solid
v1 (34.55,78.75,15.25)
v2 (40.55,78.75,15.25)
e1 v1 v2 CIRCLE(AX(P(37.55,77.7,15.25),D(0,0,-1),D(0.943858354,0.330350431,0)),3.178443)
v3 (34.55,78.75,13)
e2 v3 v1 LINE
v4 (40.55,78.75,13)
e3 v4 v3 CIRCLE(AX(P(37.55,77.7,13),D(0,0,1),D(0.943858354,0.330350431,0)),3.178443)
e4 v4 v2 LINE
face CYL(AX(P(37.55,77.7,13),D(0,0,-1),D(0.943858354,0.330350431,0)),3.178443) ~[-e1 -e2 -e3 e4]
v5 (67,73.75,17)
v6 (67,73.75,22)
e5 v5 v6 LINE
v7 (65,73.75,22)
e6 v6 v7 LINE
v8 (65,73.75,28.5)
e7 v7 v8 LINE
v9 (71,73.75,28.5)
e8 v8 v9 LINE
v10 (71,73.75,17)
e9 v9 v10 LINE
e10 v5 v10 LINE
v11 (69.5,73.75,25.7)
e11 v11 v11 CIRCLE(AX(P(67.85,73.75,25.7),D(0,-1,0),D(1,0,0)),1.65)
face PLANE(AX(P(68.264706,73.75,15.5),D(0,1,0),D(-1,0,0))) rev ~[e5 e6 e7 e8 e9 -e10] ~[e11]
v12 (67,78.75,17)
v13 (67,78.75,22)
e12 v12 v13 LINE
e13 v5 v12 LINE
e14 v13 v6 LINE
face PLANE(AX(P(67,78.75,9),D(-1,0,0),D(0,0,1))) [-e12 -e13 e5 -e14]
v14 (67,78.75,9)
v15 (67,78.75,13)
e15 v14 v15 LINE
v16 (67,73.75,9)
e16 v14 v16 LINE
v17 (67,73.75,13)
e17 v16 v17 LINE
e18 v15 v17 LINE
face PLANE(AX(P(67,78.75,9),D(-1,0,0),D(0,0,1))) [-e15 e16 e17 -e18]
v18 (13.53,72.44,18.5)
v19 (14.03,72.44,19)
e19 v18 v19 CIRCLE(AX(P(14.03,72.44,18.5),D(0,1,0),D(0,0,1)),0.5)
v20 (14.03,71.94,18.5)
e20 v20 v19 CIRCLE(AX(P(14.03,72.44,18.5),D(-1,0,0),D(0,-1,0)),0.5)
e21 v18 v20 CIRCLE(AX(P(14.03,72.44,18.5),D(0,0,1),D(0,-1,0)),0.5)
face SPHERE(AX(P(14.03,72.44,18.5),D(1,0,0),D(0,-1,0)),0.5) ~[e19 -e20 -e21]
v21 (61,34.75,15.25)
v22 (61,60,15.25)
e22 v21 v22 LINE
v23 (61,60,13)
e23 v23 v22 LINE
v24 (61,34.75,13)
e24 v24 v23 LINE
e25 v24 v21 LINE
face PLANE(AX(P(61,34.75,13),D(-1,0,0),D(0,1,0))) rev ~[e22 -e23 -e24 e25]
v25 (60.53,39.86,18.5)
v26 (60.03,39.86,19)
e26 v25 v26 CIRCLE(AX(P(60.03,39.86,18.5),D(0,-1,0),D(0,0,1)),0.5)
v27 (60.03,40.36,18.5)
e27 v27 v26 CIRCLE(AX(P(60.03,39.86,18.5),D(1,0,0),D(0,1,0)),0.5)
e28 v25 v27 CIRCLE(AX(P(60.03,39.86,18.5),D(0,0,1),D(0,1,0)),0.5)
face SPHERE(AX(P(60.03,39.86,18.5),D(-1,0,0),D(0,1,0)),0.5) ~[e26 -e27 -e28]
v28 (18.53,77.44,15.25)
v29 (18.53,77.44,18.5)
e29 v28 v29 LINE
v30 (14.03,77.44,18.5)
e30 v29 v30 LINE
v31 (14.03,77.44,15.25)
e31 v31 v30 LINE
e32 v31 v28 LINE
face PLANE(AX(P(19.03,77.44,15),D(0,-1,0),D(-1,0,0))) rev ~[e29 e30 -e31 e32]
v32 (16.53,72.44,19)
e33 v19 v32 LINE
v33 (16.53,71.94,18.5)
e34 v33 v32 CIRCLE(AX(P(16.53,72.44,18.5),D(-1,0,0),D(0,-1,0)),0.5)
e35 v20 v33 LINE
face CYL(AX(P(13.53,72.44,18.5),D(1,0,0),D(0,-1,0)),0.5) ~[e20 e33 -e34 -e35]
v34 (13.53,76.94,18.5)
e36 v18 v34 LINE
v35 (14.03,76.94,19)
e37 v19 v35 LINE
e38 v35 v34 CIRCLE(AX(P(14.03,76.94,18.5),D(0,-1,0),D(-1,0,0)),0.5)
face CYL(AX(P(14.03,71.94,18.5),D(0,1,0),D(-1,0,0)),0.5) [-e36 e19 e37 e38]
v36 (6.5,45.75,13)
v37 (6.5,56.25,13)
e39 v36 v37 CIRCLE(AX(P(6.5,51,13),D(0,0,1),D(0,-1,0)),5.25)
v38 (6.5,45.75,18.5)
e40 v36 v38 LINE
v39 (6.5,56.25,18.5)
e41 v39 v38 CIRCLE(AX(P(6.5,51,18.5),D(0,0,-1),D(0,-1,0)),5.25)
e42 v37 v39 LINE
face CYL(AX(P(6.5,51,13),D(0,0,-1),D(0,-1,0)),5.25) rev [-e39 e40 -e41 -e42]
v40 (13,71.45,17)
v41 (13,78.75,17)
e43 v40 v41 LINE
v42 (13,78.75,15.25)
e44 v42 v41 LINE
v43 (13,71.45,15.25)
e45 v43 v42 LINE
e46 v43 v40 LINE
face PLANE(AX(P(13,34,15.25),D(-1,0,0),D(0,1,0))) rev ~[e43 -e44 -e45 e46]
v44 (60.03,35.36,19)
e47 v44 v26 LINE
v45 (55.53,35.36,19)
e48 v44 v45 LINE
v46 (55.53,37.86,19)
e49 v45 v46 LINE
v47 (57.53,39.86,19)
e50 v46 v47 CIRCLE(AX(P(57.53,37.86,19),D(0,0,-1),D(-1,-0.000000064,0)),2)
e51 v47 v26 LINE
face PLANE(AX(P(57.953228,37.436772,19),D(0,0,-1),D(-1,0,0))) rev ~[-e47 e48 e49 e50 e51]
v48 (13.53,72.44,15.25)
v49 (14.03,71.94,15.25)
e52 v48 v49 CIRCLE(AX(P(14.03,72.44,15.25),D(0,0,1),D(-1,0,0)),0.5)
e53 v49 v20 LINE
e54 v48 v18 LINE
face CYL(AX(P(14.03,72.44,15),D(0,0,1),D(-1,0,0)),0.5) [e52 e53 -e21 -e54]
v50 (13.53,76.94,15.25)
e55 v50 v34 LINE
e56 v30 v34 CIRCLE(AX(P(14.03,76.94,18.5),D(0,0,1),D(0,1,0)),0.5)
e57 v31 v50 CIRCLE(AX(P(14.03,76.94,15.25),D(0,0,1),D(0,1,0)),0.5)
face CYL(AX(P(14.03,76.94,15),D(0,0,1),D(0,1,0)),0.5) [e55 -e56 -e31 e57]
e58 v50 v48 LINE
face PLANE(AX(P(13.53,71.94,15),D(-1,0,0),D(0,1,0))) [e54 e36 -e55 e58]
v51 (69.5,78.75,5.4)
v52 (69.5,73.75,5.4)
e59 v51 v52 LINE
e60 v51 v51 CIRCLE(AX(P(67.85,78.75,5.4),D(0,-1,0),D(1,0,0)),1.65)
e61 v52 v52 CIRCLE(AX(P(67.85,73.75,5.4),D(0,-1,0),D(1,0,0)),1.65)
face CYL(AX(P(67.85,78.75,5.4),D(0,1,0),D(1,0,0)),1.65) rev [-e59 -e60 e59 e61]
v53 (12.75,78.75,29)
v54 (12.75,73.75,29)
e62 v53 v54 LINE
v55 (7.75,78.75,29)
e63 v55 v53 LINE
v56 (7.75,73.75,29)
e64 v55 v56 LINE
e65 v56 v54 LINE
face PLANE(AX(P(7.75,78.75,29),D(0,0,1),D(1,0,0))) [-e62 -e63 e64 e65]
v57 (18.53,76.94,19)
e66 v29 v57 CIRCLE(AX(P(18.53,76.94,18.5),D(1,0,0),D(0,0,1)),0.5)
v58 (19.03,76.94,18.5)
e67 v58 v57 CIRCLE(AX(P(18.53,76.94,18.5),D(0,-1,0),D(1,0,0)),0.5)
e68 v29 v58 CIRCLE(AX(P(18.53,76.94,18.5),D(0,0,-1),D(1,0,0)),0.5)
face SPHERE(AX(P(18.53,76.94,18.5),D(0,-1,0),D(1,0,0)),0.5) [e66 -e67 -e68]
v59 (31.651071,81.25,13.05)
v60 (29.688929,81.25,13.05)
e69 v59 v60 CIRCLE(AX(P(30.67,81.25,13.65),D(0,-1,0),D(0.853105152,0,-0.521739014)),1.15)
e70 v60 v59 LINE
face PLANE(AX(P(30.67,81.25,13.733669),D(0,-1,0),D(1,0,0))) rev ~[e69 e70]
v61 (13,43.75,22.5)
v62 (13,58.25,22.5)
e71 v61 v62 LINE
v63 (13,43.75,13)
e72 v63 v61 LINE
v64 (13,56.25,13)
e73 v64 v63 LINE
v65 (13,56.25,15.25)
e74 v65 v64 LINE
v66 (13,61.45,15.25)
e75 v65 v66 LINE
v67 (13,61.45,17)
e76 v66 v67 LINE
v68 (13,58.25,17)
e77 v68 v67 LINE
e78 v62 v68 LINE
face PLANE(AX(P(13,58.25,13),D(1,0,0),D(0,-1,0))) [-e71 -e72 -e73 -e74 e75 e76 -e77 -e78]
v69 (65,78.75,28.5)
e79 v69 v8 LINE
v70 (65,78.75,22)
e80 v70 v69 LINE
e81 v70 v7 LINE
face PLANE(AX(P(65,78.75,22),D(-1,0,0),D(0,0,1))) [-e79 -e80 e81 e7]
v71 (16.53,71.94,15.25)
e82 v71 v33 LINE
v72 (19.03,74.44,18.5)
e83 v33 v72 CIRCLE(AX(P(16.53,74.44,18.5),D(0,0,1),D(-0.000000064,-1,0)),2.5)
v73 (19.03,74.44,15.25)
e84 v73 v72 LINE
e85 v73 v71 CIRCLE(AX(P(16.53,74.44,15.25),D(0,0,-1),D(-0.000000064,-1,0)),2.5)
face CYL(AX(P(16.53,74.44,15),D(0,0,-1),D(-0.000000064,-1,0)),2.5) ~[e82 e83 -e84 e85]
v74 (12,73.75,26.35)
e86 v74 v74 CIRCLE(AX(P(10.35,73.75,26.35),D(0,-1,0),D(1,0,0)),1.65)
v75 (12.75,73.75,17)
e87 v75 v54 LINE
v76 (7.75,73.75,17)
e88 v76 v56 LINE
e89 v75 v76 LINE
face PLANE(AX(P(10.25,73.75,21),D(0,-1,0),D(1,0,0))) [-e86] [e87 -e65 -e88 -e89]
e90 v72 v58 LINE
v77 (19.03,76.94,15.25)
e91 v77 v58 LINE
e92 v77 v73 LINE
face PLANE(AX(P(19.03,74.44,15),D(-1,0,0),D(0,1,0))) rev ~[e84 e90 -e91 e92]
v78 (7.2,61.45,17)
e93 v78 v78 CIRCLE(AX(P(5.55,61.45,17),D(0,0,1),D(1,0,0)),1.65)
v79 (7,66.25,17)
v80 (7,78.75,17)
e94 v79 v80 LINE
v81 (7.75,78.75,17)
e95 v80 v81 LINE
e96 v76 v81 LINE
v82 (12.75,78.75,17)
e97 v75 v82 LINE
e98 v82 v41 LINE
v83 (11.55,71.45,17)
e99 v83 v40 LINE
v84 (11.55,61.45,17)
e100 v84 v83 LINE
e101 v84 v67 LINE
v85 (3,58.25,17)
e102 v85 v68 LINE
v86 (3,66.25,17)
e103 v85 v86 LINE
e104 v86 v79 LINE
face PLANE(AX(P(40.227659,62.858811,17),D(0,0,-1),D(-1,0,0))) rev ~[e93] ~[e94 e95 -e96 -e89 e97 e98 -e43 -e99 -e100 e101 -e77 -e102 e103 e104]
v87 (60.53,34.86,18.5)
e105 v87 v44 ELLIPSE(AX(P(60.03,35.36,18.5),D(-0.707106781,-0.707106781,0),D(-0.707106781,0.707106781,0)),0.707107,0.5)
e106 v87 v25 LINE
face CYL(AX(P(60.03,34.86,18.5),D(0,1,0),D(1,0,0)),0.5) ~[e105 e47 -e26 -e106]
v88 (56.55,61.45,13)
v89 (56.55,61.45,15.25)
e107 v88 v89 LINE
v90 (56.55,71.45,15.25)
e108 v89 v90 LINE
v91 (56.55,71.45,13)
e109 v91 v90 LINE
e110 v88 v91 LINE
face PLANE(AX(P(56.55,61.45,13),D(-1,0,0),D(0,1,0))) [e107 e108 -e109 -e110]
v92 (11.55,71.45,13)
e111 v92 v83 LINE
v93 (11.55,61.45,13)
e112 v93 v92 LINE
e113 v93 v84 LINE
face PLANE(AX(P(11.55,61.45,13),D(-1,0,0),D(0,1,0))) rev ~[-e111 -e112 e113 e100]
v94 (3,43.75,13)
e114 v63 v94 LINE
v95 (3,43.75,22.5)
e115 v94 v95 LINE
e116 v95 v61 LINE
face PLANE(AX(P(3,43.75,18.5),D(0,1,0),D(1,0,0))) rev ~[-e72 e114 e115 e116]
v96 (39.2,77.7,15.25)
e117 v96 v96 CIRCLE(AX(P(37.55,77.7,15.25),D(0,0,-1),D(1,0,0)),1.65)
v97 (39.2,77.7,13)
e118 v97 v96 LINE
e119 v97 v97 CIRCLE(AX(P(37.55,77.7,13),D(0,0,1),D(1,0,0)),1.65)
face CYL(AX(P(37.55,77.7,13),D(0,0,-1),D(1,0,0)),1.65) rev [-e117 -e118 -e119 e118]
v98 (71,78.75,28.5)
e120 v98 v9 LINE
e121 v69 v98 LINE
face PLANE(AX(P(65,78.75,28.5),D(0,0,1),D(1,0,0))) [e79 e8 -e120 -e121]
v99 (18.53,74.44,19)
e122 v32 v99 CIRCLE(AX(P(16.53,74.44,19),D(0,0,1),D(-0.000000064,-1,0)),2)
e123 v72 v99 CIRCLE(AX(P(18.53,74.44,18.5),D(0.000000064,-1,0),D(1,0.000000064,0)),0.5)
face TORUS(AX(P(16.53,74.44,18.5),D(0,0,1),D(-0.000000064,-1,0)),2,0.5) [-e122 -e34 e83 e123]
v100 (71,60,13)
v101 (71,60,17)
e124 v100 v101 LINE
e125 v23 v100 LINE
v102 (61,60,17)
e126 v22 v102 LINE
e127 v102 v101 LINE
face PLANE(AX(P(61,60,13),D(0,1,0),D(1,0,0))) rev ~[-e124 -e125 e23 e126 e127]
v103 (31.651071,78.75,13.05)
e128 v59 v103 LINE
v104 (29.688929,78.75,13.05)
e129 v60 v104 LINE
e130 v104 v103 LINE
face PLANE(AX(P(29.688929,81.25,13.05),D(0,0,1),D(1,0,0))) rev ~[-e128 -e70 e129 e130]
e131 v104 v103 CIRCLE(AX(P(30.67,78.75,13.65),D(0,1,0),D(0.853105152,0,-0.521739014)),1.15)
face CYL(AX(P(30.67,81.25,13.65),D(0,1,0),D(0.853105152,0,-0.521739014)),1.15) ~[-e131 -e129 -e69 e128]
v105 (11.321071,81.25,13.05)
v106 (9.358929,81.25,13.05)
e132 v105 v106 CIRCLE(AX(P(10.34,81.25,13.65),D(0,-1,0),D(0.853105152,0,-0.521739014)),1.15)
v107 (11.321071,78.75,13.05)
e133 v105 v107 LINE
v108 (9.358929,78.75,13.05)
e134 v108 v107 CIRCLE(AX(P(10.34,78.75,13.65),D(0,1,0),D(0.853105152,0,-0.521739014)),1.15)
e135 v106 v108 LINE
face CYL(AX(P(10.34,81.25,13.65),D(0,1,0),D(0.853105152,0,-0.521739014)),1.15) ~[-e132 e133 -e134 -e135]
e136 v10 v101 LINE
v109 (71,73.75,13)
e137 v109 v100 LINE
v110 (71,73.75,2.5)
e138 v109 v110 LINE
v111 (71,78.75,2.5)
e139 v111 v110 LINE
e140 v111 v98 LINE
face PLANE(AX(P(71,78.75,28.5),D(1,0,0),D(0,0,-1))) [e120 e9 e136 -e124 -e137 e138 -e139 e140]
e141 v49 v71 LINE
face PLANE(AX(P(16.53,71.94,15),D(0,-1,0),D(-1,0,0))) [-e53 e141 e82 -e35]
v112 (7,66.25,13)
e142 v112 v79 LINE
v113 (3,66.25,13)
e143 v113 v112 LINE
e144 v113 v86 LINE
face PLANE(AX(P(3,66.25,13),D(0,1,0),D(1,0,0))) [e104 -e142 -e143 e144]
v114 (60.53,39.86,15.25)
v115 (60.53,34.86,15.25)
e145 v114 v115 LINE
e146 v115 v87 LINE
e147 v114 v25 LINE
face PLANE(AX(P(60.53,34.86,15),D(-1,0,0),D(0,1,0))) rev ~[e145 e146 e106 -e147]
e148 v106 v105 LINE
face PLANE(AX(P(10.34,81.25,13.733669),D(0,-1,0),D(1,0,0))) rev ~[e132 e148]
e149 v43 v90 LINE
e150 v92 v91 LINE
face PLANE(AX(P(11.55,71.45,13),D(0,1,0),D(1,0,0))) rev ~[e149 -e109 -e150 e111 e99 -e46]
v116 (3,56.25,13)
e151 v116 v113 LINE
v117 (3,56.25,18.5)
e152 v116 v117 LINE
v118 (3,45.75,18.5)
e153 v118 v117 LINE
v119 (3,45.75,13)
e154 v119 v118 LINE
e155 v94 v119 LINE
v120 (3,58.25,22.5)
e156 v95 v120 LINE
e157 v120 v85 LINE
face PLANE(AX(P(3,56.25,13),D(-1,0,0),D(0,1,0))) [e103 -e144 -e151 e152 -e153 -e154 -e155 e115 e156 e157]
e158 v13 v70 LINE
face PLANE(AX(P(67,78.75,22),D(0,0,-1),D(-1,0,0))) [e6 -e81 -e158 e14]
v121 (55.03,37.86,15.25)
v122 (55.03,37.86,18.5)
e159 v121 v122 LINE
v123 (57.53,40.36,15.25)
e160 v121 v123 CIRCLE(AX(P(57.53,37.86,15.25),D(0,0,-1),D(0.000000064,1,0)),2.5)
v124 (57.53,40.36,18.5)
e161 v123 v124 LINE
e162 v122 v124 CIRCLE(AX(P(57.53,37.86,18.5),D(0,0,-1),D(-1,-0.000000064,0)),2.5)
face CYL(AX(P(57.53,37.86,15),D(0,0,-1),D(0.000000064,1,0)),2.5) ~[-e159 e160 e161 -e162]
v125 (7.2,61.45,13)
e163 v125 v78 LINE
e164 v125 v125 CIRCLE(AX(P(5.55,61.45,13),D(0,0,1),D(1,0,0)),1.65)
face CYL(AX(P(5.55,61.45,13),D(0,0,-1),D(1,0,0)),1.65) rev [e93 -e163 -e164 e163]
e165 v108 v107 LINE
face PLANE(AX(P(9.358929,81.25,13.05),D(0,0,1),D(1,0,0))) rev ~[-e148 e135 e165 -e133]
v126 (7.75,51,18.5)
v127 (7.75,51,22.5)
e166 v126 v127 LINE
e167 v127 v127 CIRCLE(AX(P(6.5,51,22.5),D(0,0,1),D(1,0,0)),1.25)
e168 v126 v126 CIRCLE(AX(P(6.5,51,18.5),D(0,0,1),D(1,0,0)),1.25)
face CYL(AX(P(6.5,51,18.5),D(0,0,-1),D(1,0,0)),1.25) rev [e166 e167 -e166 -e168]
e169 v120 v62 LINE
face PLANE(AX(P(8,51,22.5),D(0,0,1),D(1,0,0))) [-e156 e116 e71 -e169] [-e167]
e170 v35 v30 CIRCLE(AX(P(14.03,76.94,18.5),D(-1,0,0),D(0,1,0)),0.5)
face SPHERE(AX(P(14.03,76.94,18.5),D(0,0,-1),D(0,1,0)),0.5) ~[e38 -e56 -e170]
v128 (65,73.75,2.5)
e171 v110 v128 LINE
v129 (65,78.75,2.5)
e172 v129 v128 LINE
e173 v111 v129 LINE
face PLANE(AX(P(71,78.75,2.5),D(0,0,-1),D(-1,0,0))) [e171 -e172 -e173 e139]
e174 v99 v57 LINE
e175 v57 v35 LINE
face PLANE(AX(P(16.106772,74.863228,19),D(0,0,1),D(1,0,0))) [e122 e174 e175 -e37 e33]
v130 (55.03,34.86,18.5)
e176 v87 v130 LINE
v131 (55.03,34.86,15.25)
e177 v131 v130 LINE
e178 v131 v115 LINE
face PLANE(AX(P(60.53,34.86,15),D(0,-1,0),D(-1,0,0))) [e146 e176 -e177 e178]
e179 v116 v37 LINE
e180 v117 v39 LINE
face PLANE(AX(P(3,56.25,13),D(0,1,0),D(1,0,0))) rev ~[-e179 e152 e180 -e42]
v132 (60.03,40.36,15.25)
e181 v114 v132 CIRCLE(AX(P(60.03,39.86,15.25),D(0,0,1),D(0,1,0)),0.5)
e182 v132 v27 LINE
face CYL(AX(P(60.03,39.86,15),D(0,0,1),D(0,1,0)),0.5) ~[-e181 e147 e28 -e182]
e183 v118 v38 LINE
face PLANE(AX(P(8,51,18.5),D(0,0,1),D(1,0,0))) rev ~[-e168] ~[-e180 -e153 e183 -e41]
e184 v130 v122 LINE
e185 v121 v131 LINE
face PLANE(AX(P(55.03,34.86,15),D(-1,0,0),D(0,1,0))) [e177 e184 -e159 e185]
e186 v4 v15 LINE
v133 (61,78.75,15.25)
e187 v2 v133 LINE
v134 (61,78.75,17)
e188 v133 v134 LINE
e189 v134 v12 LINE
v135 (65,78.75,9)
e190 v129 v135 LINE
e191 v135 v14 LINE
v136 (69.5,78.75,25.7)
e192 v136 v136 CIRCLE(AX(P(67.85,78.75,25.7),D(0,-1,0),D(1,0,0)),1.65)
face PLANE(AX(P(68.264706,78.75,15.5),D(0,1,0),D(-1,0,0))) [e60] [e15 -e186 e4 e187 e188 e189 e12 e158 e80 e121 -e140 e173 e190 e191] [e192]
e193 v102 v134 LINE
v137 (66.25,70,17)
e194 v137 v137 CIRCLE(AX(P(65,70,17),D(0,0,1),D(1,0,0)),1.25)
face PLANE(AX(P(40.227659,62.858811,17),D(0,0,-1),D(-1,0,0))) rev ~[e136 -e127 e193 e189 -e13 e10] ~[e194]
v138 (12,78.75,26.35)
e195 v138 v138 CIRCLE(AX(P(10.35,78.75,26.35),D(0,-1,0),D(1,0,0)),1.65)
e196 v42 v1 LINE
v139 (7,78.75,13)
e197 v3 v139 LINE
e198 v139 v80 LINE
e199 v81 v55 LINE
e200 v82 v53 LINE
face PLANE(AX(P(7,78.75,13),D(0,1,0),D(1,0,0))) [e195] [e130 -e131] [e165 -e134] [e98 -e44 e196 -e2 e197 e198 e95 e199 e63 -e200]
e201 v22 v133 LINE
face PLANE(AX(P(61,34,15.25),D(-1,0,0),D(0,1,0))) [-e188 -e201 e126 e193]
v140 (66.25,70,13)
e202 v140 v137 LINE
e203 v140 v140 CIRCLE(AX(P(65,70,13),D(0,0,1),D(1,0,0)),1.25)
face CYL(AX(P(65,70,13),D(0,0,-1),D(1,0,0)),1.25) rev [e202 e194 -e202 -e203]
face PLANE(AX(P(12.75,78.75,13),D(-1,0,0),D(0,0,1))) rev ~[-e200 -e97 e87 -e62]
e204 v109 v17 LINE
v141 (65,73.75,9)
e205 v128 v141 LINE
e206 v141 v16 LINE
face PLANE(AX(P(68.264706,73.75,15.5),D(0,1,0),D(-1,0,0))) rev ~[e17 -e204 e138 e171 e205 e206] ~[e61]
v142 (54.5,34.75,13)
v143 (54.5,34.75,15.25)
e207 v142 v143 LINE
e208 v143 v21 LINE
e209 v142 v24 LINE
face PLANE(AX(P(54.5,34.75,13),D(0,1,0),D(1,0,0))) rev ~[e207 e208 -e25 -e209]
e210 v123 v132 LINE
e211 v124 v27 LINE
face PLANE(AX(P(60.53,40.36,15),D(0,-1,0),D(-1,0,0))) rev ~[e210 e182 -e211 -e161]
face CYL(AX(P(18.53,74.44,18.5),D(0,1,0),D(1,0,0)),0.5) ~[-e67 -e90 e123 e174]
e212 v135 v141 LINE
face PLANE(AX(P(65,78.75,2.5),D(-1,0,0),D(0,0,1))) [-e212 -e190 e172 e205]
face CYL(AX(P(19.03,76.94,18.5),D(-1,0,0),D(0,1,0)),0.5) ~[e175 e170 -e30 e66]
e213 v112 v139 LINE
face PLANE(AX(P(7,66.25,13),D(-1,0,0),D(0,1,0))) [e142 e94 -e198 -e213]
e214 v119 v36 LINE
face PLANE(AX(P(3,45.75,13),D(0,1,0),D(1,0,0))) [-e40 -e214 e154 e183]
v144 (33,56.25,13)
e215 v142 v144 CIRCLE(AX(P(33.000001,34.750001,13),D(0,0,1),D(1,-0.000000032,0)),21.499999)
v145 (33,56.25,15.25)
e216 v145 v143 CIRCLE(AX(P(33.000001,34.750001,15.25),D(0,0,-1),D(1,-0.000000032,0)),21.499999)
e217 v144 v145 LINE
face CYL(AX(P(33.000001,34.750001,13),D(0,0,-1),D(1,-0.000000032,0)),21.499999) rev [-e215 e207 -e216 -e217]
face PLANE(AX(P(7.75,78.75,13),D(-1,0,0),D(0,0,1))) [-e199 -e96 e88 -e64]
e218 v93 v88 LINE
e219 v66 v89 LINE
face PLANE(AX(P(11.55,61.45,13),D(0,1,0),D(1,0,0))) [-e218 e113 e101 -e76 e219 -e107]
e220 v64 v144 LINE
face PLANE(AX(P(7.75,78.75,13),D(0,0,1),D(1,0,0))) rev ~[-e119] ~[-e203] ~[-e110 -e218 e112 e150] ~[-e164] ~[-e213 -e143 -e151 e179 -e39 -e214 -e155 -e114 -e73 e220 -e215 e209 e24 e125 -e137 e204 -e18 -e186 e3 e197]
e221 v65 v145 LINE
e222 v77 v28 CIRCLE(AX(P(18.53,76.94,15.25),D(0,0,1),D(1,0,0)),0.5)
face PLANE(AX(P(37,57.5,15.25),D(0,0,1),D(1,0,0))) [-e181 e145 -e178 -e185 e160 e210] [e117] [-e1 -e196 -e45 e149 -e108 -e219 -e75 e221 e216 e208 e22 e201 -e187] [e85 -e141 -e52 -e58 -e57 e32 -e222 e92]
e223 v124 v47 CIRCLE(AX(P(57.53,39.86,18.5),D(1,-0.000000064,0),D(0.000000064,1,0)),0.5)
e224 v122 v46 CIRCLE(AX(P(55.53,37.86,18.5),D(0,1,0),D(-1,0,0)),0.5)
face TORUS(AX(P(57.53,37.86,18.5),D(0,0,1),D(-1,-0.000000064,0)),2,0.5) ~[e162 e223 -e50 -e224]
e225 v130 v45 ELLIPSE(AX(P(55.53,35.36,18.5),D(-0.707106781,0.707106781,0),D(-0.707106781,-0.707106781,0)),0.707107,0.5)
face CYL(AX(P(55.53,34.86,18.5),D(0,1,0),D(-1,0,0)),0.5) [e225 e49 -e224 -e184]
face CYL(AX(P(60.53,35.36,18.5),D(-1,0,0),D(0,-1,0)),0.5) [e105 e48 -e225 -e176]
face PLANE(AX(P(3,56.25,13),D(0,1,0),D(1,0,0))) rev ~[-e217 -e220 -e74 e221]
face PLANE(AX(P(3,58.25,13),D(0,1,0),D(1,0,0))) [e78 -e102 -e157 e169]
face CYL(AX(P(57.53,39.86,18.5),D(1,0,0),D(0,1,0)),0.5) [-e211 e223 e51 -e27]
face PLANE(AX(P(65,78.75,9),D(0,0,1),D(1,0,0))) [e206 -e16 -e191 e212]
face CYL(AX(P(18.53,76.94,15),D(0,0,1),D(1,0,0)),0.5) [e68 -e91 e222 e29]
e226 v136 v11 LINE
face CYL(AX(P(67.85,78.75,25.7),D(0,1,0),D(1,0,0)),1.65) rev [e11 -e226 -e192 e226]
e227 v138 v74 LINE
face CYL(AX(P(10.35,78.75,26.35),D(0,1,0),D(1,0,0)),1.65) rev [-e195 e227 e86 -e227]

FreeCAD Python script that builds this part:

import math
import FreeCAD as App
import Part
import Sketcher

V = App.Vector
Q = App.Units.Quantity


def edges_at(feature, points):
    """Names of the edges that pass closest to the given points."""
    edges = feature.Shape.Edges
    near = lambda p: min(range(len(edges)), key=lambda i: edges[i].distToShape(Part.Vertex(*p))[0])
    return sorted({f"Edge{near(p) + 1}" for p in points})

doc = App.newDocument("Part")
params = doc.addObject("Spreadsheet::Sheet", "Params")
for row, (alias, value) in enumerate([
    ("sketch1_diameter", "3.3 mm"),
    ("sketch1_width", "6 mm"),
    ("sketch1_width2", "2 mm"),
    ("sketch1_height", "13 mm"),
    ("sketch1_height2", "26 mm"),
    ("pad1_length", "5 mm"),
    ("sketch2_radius", "2.5 mm"),
    ("sketch2_width", "3 mm"),
    ("pad2_length", "4 mm"),
    ("fillet_radius", "0.5 mm"),
    ("sketch3_width", "48 mm"),
    ("sketch3_height", "47 mm"),
    ("pad3_length", "10 mm"),
    ("sketch4_width", "10 mm"),
    ("sketch4_height", "2 mm"),
    ("sketch4_radius", "5.25 mm"),
    ("sketch4_width2", "3.5 mm"),
    ("pad4_length", "6 mm"),
    ("sketch5_diameter", "2.5 mm"),
    ("sketch5_width", "10 mm"),
    ("sketch5_height", "14.5 mm"),
    ("pad5_length", "4 mm"),
    ("sketch6_diameter", "3.3 mm"),
    ("sketch6_width", "5 mm"),
    ("sketch6_height", "16 mm"),
    ("pad6_length", "5 mm"),
    ("sketch7_radius", "1.15 mm"),
    ("sketch7_height", "0.6 mm"),
    ("pad7_length", "3 mm"),
    ("sketch8_diameter", "3.3 mm"),
    ("sketch8_diameter2", "2.5 mm"),
    ("sketch8_radius", "21.499999 mm"),
    ("sketch8_width", "4 mm"),
    ("sketch8_width2", "30 mm"),
    ("pad8_length", "4 mm"),
], start=1):
    params.set(f"A{row}", alias)
    params.set(f"B{row}", "=" + value)
    params.setAlias(f"B{row}", alias)

body = doc.addObject("PartDesign::Body", "Body")

# Sketch on XZ plane
sketch1 = doc.addObject("Sketcher::SketchObject", "Sketch")
body.addObject(sketch1)
sketch1.AttachmentSupport = (doc.XZ_Plane, [""])
sketch1.MapMode = "FlatFace"
sketch1.addGeometry([
    Part.LineSegment(V(71, 28.5, 0), V(65, 28.5, 0)),  # 0
    Part.LineSegment(V(65, 28.5, 0), V(65, 22, 0)),  # 1
    Part.LineSegment(V(65, 22, 0), V(67, 22, 0)),  # 2
    Part.LineSegment(V(67, 22, 0), V(67, 9, 0)),  # 3
    Part.LineSegment(V(67, 9, 0), V(65, 9, 0)),  # 4
    Part.LineSegment(V(65, 9, 0), V(65, 2.5, 0)),  # 5
    Part.LineSegment(V(65, 2.5, 0), V(71, 2.5, 0)),  # 6
    Part.LineSegment(V(71, 2.5, 0), V(71, 28.5, 0)),  # 7
    Part.Circle(V(67.85, 5.4, 0), V(0, 0, 1), 1.65),  # 8
    Part.Circle(V(67.85, 25.7, 0), V(0, 0, 1), 1.65),  # 9
], False)
sketch1.addConstraint([
    Sketcher.Constraint("Coincident", 0, 2, 1, 1),
    Sketcher.Constraint("Coincident", 1, 2, 2, 1),
    Sketcher.Constraint("Coincident", 2, 2, 3, 1),
    Sketcher.Constraint("Coincident", 3, 2, 4, 1),
    Sketcher.Constraint("Coincident", 4, 2, 5, 1),
    Sketcher.Constraint("Coincident", 5, 2, 6, 1),
    Sketcher.Constraint("Coincident", 6, 2, 7, 1),
    Sketcher.Constraint("Coincident", 7, 2, 0, 1),
    Sketcher.Constraint("Horizontal", 0),
    Sketcher.Constraint("Vertical", 1),
    Sketcher.Constraint("Horizontal", 2),
    Sketcher.Constraint("Vertical", 3),
    Sketcher.Constraint("Horizontal", 4),
    Sketcher.Constraint("Vertical", 5),
    Sketcher.Constraint("Horizontal", 6),
    Sketcher.Constraint("Vertical", 7),
    Sketcher.Constraint("Equal", 8, 9),
    Sketcher.Constraint("Vertical", 8, 3, 9, 3),
    Sketcher.Constraint("Vertical", 1, 2, 4, 2),
    Sketcher.Constraint("Equal", 1, 5),
    Sketcher.Constraint("Diameter", 8, Q("3.3 mm")),
    Sketcher.Constraint("DistanceX", 0, 2, 0, 1, Q("6 mm")),
    Sketcher.Constraint("DistanceX", 2, 1, 2, 2, Q("2 mm")),
    Sketcher.Constraint("DistanceY", 3, 2, 3, 1, Q("13 mm")),
    Sketcher.Constraint("DistanceY", 7, 1, 7, 2, Q("26 mm")),
    Sketcher.Constraint("DistanceX", -1, 1, 0, 2, Q("65 mm")),
    Sketcher.Constraint("DistanceY", -1, 1, 1, 2, Q("22 mm")),
    Sketcher.Constraint("DistanceY", -1, 1, 8, 3, Q("5.4 mm")),
    Sketcher.Constraint("DistanceY", -1, 1, 9, 3, Q("25.7 mm")),
    Sketcher.Constraint("DistanceX", -1, 1, 8, 3, Q("67.85 mm")),
])
sketch1.setExpression("Constraints[20]", "Params.sketch1_diameter")
sketch1.setExpression("Constraints[21]", "Params.sketch1_width")
sketch1.setExpression("Constraints[22]", "Params.sketch1_width2")
sketch1.setExpression("Constraints[23]", "Params.sketch1_height")
sketch1.setExpression("Constraints[24]", "Params.sketch1_height2")
pad1 = doc.addObject("PartDesign::Pad", "Pad")
body.addObject(pad1)
pad1.Profile = sketch1
pad1.setExpression("Length", "Params.pad1_length")
body2 = doc.addObject("PartDesign::Body", "Body001")
doc.recompute()

body.Placement = App.Placement(V(0, 78.75, 0), App.Rotation(V(0, 0, 1), 0))
boolean = doc.addObject("PartDesign::Boolean", "Boolean")
body2.addObject(boolean)
boolean.Type = "Fuse"
boolean.addObjects([body])
body3 = doc.addObject("PartDesign::Body", "Body002")
body3.AllowCompound = True

# Sketch on XY plane
sketch2 = doc.addObject("Sketcher::SketchObject", "Sketch001")
body3.addObject(sketch2)
sketch2.AttachmentSupport = (doc.getObject("XY_Plane002"), [""])
sketch2.MapMode = "FlatFace"
sketch2.addGeometry([
    Part.LineSegment(V(19.03, 74.44, 0), V(19.03, 77.44, 0)),  # 0
    Part.LineSegment(V(19.03, 77.44, 0), V(13.53, 77.44, 0)),  # 1
    Part.LineSegment(V(13.53, 77.44, 0), V(13.53, 71.94, 0)),  # 2
    Part.LineSegment(V(13.53, 71.94, 0), V(16.53, 71.94, 0)),  # 3
    Part.ArcOfCircle(Part.Circle(V(16.53, 74.44, 0), V(0, 0, 1), 2.5), math.radians(-90.000004), math.radians(0.000004)),  # 4
    Part.LineSegment(V(55.03, 34.86, 0), V(60.53, 34.86, 0)),  # 5
    Part.LineSegment(V(60.53, 34.86, 0), V(60.53, 40.36, 0)),  # 6
    Part.LineSegment(V(60.53, 40.36, 0), V(57.53, 40.36, 0)),  # 7
    Part.ArcOfCircle(Part.Circle(V(57.53, 37.86, 0), V(0, 0, 1), 2.5), math.radians(89.999996), math.radians(180.000004)),  # 8
    Part.LineSegment(V(55.03, 37.86, 0), V(55.03, 34.86, 0)),  # 9
], False)
sketch2.addConstraint([
    Sketcher.Constraint("Coincident", 0, 2, 1, 1),
    Sketcher.Constraint("Coincident", 1, 2, 2, 1),
    Sketcher.Constraint("Coincident", 2, 2, 3, 1),
    Sketcher.Constraint("Tangent", 3, 2, 4, 1),
    Sketcher.Constraint("Tangent", 4, 2, 0, 1),
    Sketcher.Constraint("Coincident", 5, 2, 6, 1),
    Sketcher.Constraint("Coincident", 6, 2, 7, 1),
    Sketcher.Constraint("Tangent", 7, 2, 8, 1),
    Sketcher.Constraint("Tangent", 8, 2, 9, 1),
    Sketcher.Constraint("Coincident", 9, 2, 5, 1),
    Sketcher.Constraint("Vertical", 0),
    Sketcher.Constraint("Horizontal", 1),
    Sketcher.Constraint("Vertical", 2),
    Sketcher.Constraint("Horizontal", 3),
    Sketcher.Constraint("Horizontal", 5),
    Sketcher.Constraint("Vertical", 6),
    Sketcher.Constraint("Horizontal", 7),
    Sketcher.Constraint("Vertical", 9),
    Sketcher.Constraint("Equal", 4, 8),
    Sketcher.Constraint("Equal", 1, 5),
    Sketcher.Constraint("Equal", 7, 0),
    Sketcher.Constraint("Equal", 2, 6),
    Sketcher.Constraint("Radius", 4, Q("2.5 mm")),
    Sketcher.Constraint("DistanceX", 3, 1, 3, 2, Q("3 mm")),
    Sketcher.Constraint("DistanceX", 4, 3, 8, 3, Q("41 mm")),
    Sketcher.Constraint("DistanceX", -1, 1, 4, 3, Q("16.53 mm")),
    Sketcher.Constraint("DistanceY", -1, 1, 4, 3, Q("74.44 mm")),
    Sketcher.Constraint("DistanceY", -1, 1, 8, 3, Q("37.86 mm")),
])
sketch2.setExpression("Constraints[22]", "Params.sketch2_radius")
sketch2.setExpression("Constraints[23]", "Params.sketch2_width")
pad2 = doc.addObject("PartDesign::Pad", "Pad001")
body3.addObject(pad2)
pad2.Profile = sketch2
pad2.setExpression("Length", "Params.pad2_length")
body4 = doc.addObject("PartDesign::Body", "Body003")
body4.AllowCompound = True
doc.recompute()

body3.Placement = App.Placement(V(0, 0, 2), App.Rotation(V(0, 0, 1), 0))
boolean2 = doc.addObject("PartDesign::Boolean", "Boolean001")
body4.addObject(boolean2)
boolean2.Type = "Fuse"
boolean2.addObjects([body3])
doc.recompute()

fillet = doc.addObject("PartDesign::Fillet", "Fillet")
body4.addObject(fillet)
fillet.Base = (boolean2, edges_at(boolean2, [
    (57.78, 34.86, 6),
    (55.03, 36.36, 6),
    (55.762, 39.628, 6),
    (60.53, 40.36, 4),
    (59.03, 40.36, 6),
    (60.53, 37.61, 6),
    (18.298, 72.672, 6),
    (19.03, 77.44, 4),
    (19.03, 75.94, 6),
    (13.53, 77.44, 4),
    (16.28, 77.44, 6),
    (13.53, 71.94, 4),
    (13.53, 74.69, 6),
    (15.03, 71.94, 6),
]))
fillet.setExpression("Radius", "Params.fillet_radius")
body5 = doc.addObject("PartDesign::Body", "Body004")
body5.AllowCompound = True
doc.recompute()

body4.Placement = App.Placement(V(0, 0, 13), App.Rotation(V(0, 0, 1), 0))
boolean3 = doc.addObject("PartDesign::Boolean", "Boolean002")
body5.addObject(boolean3)
boolean3.Type = "Fuse"
boolean3.addObjects([body4])
body6 = doc.addObject("PartDesign::Body", "Body005")

# Sketch on XY plane
sketch3 = doc.addObject("Sketcher::SketchObject", "Sketch002")
body6.addObject(sketch3)
sketch3.AttachmentSupport = (doc.getObject("XY_Plane005"), [""])
sketch3.MapMode = "FlatFace"
sketch3.AttachmentOffset = App.Placement(V(0, 0, 15.25), App.Rotation())
sketch3.addGeometry([
    Part.LineSegment(V(13, 81, 0), V(13, 34, 0)),
    Part.LineSegment(V(13, 34, 0), V(61, 34, 0)),
    Part.LineSegment(V(61, 34, 0), V(61, 81, 0)),
    Part.LineSegment(V(61, 81, 0), V(13, 81, 0)),
], False)
sketch3.addConstraint([
    Sketcher.Constraint("Coincident", 0, 2, 1, 1),
    Sketcher.Constraint("Coincident", 1, 2, 2, 1),
    Sketcher.Constraint("Coincident", 2, 2, 3, 1),
    Sketcher.Constraint("Coincident", 3, 2, 0, 1),
    Sketcher.Constraint("Vertical", 0),
    Sketcher.Constraint("Horizontal", 1),
    Sketcher.Constraint("Vertical", 2),
    Sketcher.Constraint("Horizontal", 3),
    Sketcher.Constraint("DistanceX", 1, 1, 1, 2, Q("48 mm")),
    Sketcher.Constraint("DistanceY", 0, 2, 0, 1, Q("47 mm")),
    Sketcher.Constraint("DistanceX", -1, 1, 0, 2, Q("13 mm")),
    Sketcher.Constraint("DistanceY", -1, 1, 0, 2, Q("34 mm")),
])
sketch3.setExpression("Constraints[8]", "Params.sketch3_width")
sketch3.setExpression("Constraints[9]", "Params.sketch3_height")
pad3 = doc.addObject("PartDesign::Pad", "Pad002")
body6.addObject(pad3)
pad3.Profile = sketch3
pad3.setExpression("Length", "Params.pad3_length")
body7 = doc.addObject("PartDesign::Body", "Body006")

# Sketch on XY plane
sketch4 = doc.addObject("Sketcher::SketchObject", "Sketch003")
body7.addObject(sketch4)
sketch4.AttachmentSupport = (doc.getObject("XY_Plane006"), [""])
sketch4.MapMode = "FlatFace"
sketch4.AttachmentOffset = App.Placement(V(0, 0, 17), App.Rotation())
sketch4.addGeometry([
    Part.LineSegment(V(13, 58.25, 0), V(3, 58.25, 0)),  # 0
    Part.LineSegment(V(3, 58.25, 0), V(3, 56.25, 0)),  # 1
    Part.LineSegment(V(3, 56.25, 0), V(6.5, 56.25, 0)),  # 2
    Part.ArcOfCircle(Part.Circle(V(6.5, 51, 0), V(0, 0, 1), 5.25), math.radians(-90), math.radians(90)),  # 3
    Part.LineSegment(V(6.5, 45.75, 0), V(3, 45.75, 0)),  # 4
    Part.LineSegment(V(3, 45.75, 0), V(3, 43.75, 0)),  # 5
    Part.LineSegment(V(3, 43.75, 0), V(13, 43.75, 0)),  # 6
    Part.LineSegment(V(13, 43.75, 0), V(13, 58.25, 0)),  # 7
], False)
sketch4.addConstraint([
    Sketcher.Constraint("Coincident", 0, 2, 1, 1),
    Sketcher.Constraint("Coincident", 1, 2, 2, 1),
    Sketcher.Constraint("Tangent", 2, 2, 3, 2),
    Sketcher.Constraint("Tangent", 3, 1, 4, 1),
    Sketcher.Constraint("Coincident", 4, 2, 5, 1),
    Sketcher.Constraint("Coincident", 5, 2, 6, 1),
    Sketcher.Constraint("Coincident", 6, 2, 7, 1),
    Sketcher.Constraint("Coincident", 7, 2, 0, 1),
    Sketcher.Constraint("Horizontal", 0),
    Sketcher.Constraint("Vertical", 1),
    Sketcher.Constraint("Horizontal", 2),
    Sketcher.Constraint("Horizontal", 4),
    Sketcher.Constraint("Vertical", 5),
    Sketcher.Constraint("Horizontal", 6),
    Sketcher.Constraint("Vertical", 7),
    Sketcher.Constraint("Vertical", 1, 2, 4, 2),
    Sketcher.Constraint("Equal", 1, 5),
    Sketcher.Constraint("DistanceX", 0, 2, 0, 1, Q("10 mm")),
    Sketcher.Constraint("DistanceY", 1, 2, 1, 1, Q("2 mm")),
    Sketcher.Constraint("Radius", 3, Q("5.25 mm")),
    Sketcher.Constraint("DistanceX", 2, 1, 2, 2, Q("3.5 mm")),
    Sketcher.Constraint("DistanceY", -1, 1, 3, 3, Q("51 mm")),
    Sketcher.Constraint("DistanceX", -1, 1, 0, 2, Q("3 mm")),
])
sketch4.setExpression("Constraints[17]", "Params.sketch4_width")
sketch4.setExpression("Constraints[18]", "Params.sketch4_height")
sketch4.setExpression("Constraints[19]", "Params.sketch4_radius")
sketch4.setExpression("Constraints[20]", "Params.sketch4_width2")
pad4 = doc.addObject("PartDesign::Pad", "Pad003")
body7.addObject(pad4)
pad4.Profile = sketch4
pad4.setExpression("Length", "Params.pad4_length")
body8 = doc.addObject("PartDesign::Body", "Body007")
doc.recompute()

body7.Placement = App.Placement(V(0, 0, -4), App.Rotation(V(0, 0, 1), 0))
boolean4 = doc.addObject("PartDesign::Boolean", "Boolean003")
body8.addObject(boolean4)
boolean4.Type = "Fuse"
boolean4.addObjects([body7])
body9 = doc.addObject("PartDesign::Body", "Body008")

# Sketch on XY plane
sketch5 = doc.addObject("Sketcher::SketchObject", "Sketch004")
body9.addObject(sketch5)
sketch5.AttachmentSupport = (doc.getObject("XY_Plane008"), [""])
sketch5.MapMode = "FlatFace"
sketch5.AttachmentOffset = App.Placement(V(0, 0, 17), App.Rotation())
sketch5.addGeometry([
    Part.LineSegment(V(3, 58.25, 0), V(3, 43.75, 0)),  # 0
    Part.LineSegment(V(3, 43.75, 0), V(13, 43.75, 0)),  # 1
    Part.LineSegment(V(13, 43.75, 0), V(13, 58.25, 0)),  # 2
    Part.LineSegment(V(13, 58.25, 0), V(3, 58.25, 0)),  # 3
    Part.Circle(V(6.5, 51, 0), V(0, 0, 1), 1.25),  # 4
], False)
sketch5.addConstraint([
    Sketcher.Constraint("Coincident", 0, 2, 1, 1),
    Sketcher.Constraint("Coincident", 1, 2, 2, 1),
    Sketcher.Constraint("Coincident", 2, 2, 3, 1),
    Sketcher.Constraint("Coincident", 3, 2, 0, 1),
    Sketcher.Constraint("Vertical", 0),
    Sketcher.Constraint("Horizontal", 1),
    Sketcher.Constraint("Vertical", 2),
    Sketcher.Constraint("Horizontal", 3),
    Sketcher.Constraint("Diameter", 4, Q("2.5 mm")),
    Sketcher.Constraint("DistanceX", 1, 1, 1, 2, Q("10 mm")),
    Sketcher.Constraint("DistanceY", 0, 2, 0, 1, Q("14.5 mm")),
    Sketcher.Constraint("DistanceY", -1, 1, 4, 3, Q("51 mm")),
    Sketcher.Constraint("DistanceX", -1, 1, 0, 2, Q("3 mm")),
    Sketcher.Constraint("DistanceX", -1, 1, 4, 3, Q("6.5 mm")),
    Sketcher.Constraint("DistanceY", -1, 1, 0, 2, Q("43.75 mm")),
])
sketch5.setExpression("Constraints[8]", "Params.sketch5_diameter")
sketch5.setExpression("Constraints[9]", "Params.sketch5_width")
sketch5.setExpression("Constraints[10]", "Params.sketch5_height")
pad5 = doc.addObject("PartDesign::Pad", "Pad004")
body9.addObject(pad5)
pad5.Profile = sketch5
pad5.setExpression("Length", "Params.pad5_length")
body10 = doc.addObject("PartDesign::Body", "Body009")
doc.recompute()

body9.Placement = App.Placement(V(0, 0, 1.5), App.Rotation(V(0, 0, 1), 0))
boolean5 = doc.addObject("PartDesign::Boolean", "Boolean004")
body10.addObject(boolean5)
boolean5.Type = "Fuse"
boolean5.addObjects([body9])
body11 = doc.addObject("PartDesign::Body", "Body010")

# Sketch on XZ plane
sketch6 = doc.addObject("Sketcher::SketchObject", "Sketch005")
body11.addObject(sketch6)
sketch6.AttachmentSupport = (doc.getObject("XZ_Plane010"), [""])
sketch6.MapMode = "FlatFace"
sketch6.AttachmentOffset = App.Placement(V(0, 0, -78.75), App.Rotation())
sketch6.addGeometry([
    Part.LineSegment(V(7.75, 29, 0), V(7.75, 13, 0)),  # 0
    Part.LineSegment(V(7.75, 13, 0), V(12.75, 13, 0)),  # 1
    Part.LineSegment(V(12.75, 13, 0), V(12.75, 29, 0)),  # 2
    Part.LineSegment(V(12.75, 29, 0), V(7.75, 29, 0)),  # 3
    Part.Circle(V(10.35, 26.35, 0), V(0, 0, 1), 1.65),  # 4
], False)
sketch6.addConstraint([
    Sketcher.Constraint("Coincident", 0, 2, 1, 1),
    Sketcher.Constraint("Coincident", 1, 2, 2, 1),
    Sketcher.Constraint("Coincident", 2, 2, 3, 1),
    Sketcher.Constraint("Coincident", 3, 2, 0, 1),
    Sketcher.Constraint("Vertical", 0),
    Sketcher.Constraint("Horizontal", 1),
    Sketcher.Constraint("Vertical", 2),
    Sketcher.Constraint("Horizontal", 3),
    Sketcher.Constraint("Diameter", 4, Q("3.3 mm")),
    Sketcher.Constraint("DistanceX", 1, 1, 1, 2, Q("5 mm")),
    Sketcher.Constraint("DistanceY", 0, 2, 0, 1, Q("16 mm")),
    Sketcher.Constraint("DistanceY", -1, 1, 0, 2, Q("13 mm")),
    Sketcher.Constraint("DistanceX", 0, 2, 4, 3, Q("2.6 mm")),
    Sketcher.Constraint("DistanceX", -1, 1, 4, 3, Q("10.35 mm")),
    Sketcher.Constraint("DistanceY", -1, 1, 4, 3, Q("26.35 mm")),
])
sketch6.setExpression("Constraints[8]", "Params.sketch6_diameter")
sketch6.setExpression("Constraints[9]", "Params.sketch6_width")
sketch6.setExpression("Constraints[10]", "Params.sketch6_height")
pad6 = doc.addObject("PartDesign::Pad", "Pad005")
body11.addObject(pad6)
pad6.Profile = sketch6
pad6.setExpression("Length", "Params.pad6_length")
body12 = doc.addObject("PartDesign::Body", "Body011")
body12.AllowCompound = True

# Sketch on XZ plane
sketch7 = doc.addObject("Sketcher::SketchObject", "Sketch006")
body12.addObject(sketch7)
sketch7.AttachmentSupport = (doc.getObject("XZ_Plane011"), [""])
sketch7.MapMode = "FlatFace"
sketch7.AttachmentOffset = App.Placement(V(0, 0, -78.75), App.Rotation())
sketch7.addGeometry([
    Part.ArcOfCircle(Part.Circle(V(10.34, 13.65, 0), V(0, 0, 1), 1.15), math.radians(-31.448974), math.radians(211.448974)),
    Part.LineSegment(V(9.358929, 13.05, 0), V(11.321071, 13.05, 0)),
    Part.ArcOfCircle(Part.Circle(V(30.67, 13.65, 0), V(0, 0, 1), 1.15), math.radians(-31.448974), math.radians(211.448974)),
    Part.LineSegment(V(29.688929, 13.05, 0), V(31.651071, 13.05, 0)),
], False)
sketch7.addConstraint([
    Sketcher.Constraint("Coincident", 0, 1, 1, 2),
    Sketcher.Constraint("Coincident", 1, 1, 0, 2),
    Sketcher.Constraint("Coincident", 2, 1, 3, 2),
    Sketcher.Constraint("Coincident", 3, 1, 2, 2),
    Sketcher.Constraint("Horizontal", 1),
    Sketcher.Constraint("Horizontal", 3),
    Sketcher.Constraint("Equal", 0, 2),
    Sketcher.Constraint("Horizontal", 0, 3, 2, 3),
    Sketcher.Constraint("Horizontal", 1, 1, 2, 1),
    Sketcher.Constraint("Radius", 0, Q("1.15 mm")),
    Sketcher.Constraint("DistanceY", 0, 1, 0, 3, Q("0.6 mm")),
    Sketcher.Constraint("DistanceX", -1, 1, 0, 3, Q("10.34 mm")),
    Sketcher.Constraint("DistanceY", -1, 1, 0, 3, Q("13.65 mm")),
    Sketcher.Constraint("DistanceX", -1, 1, 2, 3, Q("30.67 mm")),
])
sketch7.setExpression("Constraints[9]", "Params.sketch7_radius")
sketch7.setExpression("Constraints[10]", "Params.sketch7_height")
pad7 = doc.addObject("PartDesign::Pad", "Pad006")
body12.addObject(pad7)
pad7.Profile = sketch7
pad7.setExpression("Length", "Params.pad7_length")
body13 = doc.addObject("PartDesign::Body", "Body012")
body13.AllowCompound = True
doc.recompute()

body12.Placement = App.Placement(V(0, 2.5, 0), App.Rotation(V(0, 0, 1), 0))
boolean6 = doc.addObject("PartDesign::Boolean", "Boolean005")
body13.addObject(boolean6)
boolean6.Type = "Fuse"
boolean6.addObjects([body12])
body14 = doc.addObject("PartDesign::Body", "Body013")

# Sketch on XY plane
sketch8 = doc.addObject("Sketcher::SketchObject", "Sketch007")
body14.addObject(sketch8)
sketch8.AttachmentSupport = (doc.getObject("XY_Plane013"), [""])
sketch8.MapMode = "FlatFace"
sketch8.addGeometry([
    Part.LineSegment(V(71, 60, 0), V(71, 78.75, 0)),  # 0
    Part.LineSegment(V(71, 78.75, 0), V(40.55, 78.75, 0)),  # 1
    Part.ArcOfCircle(Part.Circle(V(37.55, 77.7, 0), V(0, 0, 1), 3.178443), math.radians(19.290047), math.radians(160.709953)),  # 2
    Part.LineSegment(V(34.55, 78.75, 0), V(7, 78.75, 0)),  # 3
    Part.LineSegment(V(7, 78.75, 0), V(7, 66.25, 0)),  # 4
    Part.LineSegment(V(7, 66.25, 0), V(3, 66.25, 0)),  # 5
    Part.LineSegment(V(3, 66.25, 0), V(3, 56.25, 0)),  # 6
    Part.LineSegment(V(3, 56.25, 0), V(33, 56.25, 0)),  # 7
    Part.ArcOfCircle(Part.Circle(V(33.000001, 34.750001, 0), V(0, 0, 1), 21.499999), math.radians(-0.000002), math.radians(90.000002)),  # 8
    Part.LineSegment(V(54.5, 34.75, 0), V(61, 34.75, 0)),  # 9
    Part.LineSegment(V(61, 34.75, 0), V(61, 60, 0)),  # 10
    Part.LineSegment(V(61, 60, 0), V(71, 60, 0)),  # 11
    Part.Circle(V(5.55, 61.45, 0), V(0, 0, 1), 1.65),  # 12
    Part.LineSegment(V(11.55, 61.45, 0), V(11.55, 71.45, 0)),  # 13
    Part.LineSegment(V(11.55, 71.45, 0), V(56.55, 71.45, 0)),  # 14
    Part.LineSegment(V(56.55, 71.45, 0), V(56.55, 61.45, 0)),  # 15
    Part.LineSegment(V(56.55, 61.45, 0), V(11.55, 61.45, 0)),  # 16
    Part.Circle(V(65, 70, 0), V(0, 0, 1), 1.25),  # 17
    Part.Circle(V(37.55, 77.7, 0), V(0, 0, 1), 1.65),  # 18
], False)
sketch8.addConstraint([
    Sketcher.Constraint("Coincident", 0, 2, 1, 1),
    Sketcher.Constraint("Coincident", 1, 2, 2, 1),
    Sketcher.Constraint("Coincident", 2, 2, 3, 1),
    Sketcher.Constraint("Coincident", 3, 2, 4, 1),
    Sketcher.Constraint("Coincident", 4, 2, 5, 1),
    Sketcher.Constraint("Coincident", 5, 2, 6, 1),
    Sketcher.Constraint("Coincident", 6, 2, 7, 1),
    Sketcher.Constraint("Tangent", 7, 2, 8, 2),
    Sketcher.Constraint("Coincident", 8, 1, 9, 1),
    Sketcher.Constraint("Coincident", 9, 2, 10, 1),
    Sketcher.Constraint("Coincident", 10, 2, 11, 1),
    Sketcher.Constraint("Coincident", 11, 2, 0, 1),
    Sketcher.Constraint("Coincident", 13, 2, 14, 1),
    Sketcher.Constraint("Coincident", 14, 2, 15, 1),
    Sketcher.Constraint("Coincident", 15, 2, 16, 1),
    Sketcher.Constraint("Coincident", 16, 2, 13, 1),
    Sketcher.Constraint("Vertical", 0),
    Sketcher.Constraint("Horizontal", 1),
    Sketcher.Constraint("Horizontal", 3),
    Sketcher.Constraint("Vertical", 4),
    Sketcher.Constraint("Horizontal", 5),
    Sketcher.Constraint("Vertical", 6),
    Sketcher.Constraint("Horizontal", 7),
    Sketcher.Constraint("Horizontal", 9),
    Sketcher.Constraint("Vertical", 10),
    Sketcher.Constraint("Horizontal", 11),
    Sketcher.Constraint("Vertical", 13),
    Sketcher.Constraint("Horizontal", 14),
    Sketcher.Constraint("Vertical", 15),
    Sketcher.Constraint("Horizontal", 16),
    Sketcher.Constraint("Coincident", 18, 3, 2, 3),
    Sketcher.Constraint("Equal", 12, 18),
    Sketcher.Constraint("Horizontal", 1, 2, 2, 2),
    Sketcher.Constraint("Horizontal", 12, 3, 15, 2),
    Sketcher.Constraint("Equal", 11, 6),
    Sketcher.Constraint("Equal", 6, 13),
    Sketcher.Constraint("Diameter", 12, Q("3.3 mm")),
    Sketcher.Constraint("Diameter", 17, Q("2.5 mm")),
    Sketcher.Constraint("Radius", 8, Q("21.499999 mm")),
    Sketcher.Constraint("DistanceX", 5, 2, 5, 1, Q("4 mm")),
    Sketcher.Constraint("DistanceX", 7, 1, 7, 2, Q("30 mm")),
    Sketcher.Constraint("DistanceX", 11, 1, 11, 2, Q("10 mm")),
    Sketcher.Constraint("DistanceX", 14, 1, 14, 2, Q("45 mm")),
    Sketcher.Constraint("DistanceX", 9, 1, 9, 2, Q("6.5 mm")),
    Sketcher.Constraint("DistanceY", 4, 2, 4, 1, Q("12.5 mm")),
    Sketcher.Constraint("DistanceX", -1, 1, 8, 3, Q("33.000001 mm")),
    Sketcher.Constraint("DistanceX", -1, 1, 17, 3, Q("65 mm")),
    Sketcher.Constraint("DistanceY", -1, 1, 17, 3, Q("70 mm")),
    Sketcher.Constraint("DistanceY", -1, 1, 10, 2, Q("60 mm")),
    Sketcher.Constraint("DistanceX", 12, 3, 2, 3, Q("32 mm")),
    Sketcher.Constraint("DistanceX", 18, 3, 1, 2, Q("3 mm")),
    Sketcher.Constraint("DistanceY", 8, 1, 1, 2, Q("44 mm")),
    Sketcher.Constraint("DistanceX", 12, 3, 13, 2, Q("6 mm")),
    Sketcher.Constraint("DistanceX", 1, 2, 1, 1, Q("30.45 mm")),
    Sketcher.Constraint("DistanceY", 0, 1, 0, 2, Q("18.75 mm")),
    Sketcher.Constraint("DistanceY", -1, 1, 2, 3, Q("77.7 mm")),
    Sketcher.Constraint("DistanceY", 8, 3, 12, 3, Q("26.699999 mm")),
])
sketch8.setExpression("Constraints[36]", "Params.sketch8_diameter")
sketch8.setExpression("Constraints[37]", "Params.sketch8_diameter2")
sketch8.setExpression("Constraints[38]", "Params.sketch8_radius")
sketch8.setExpression("Constraints[39]", "Params.sketch8_width")
sketch8.setExpression("Constraints[40]", "Params.sketch8_width2")
pad8 = doc.addObject("PartDesign::Pad", "Pad007")
body14.addObject(pad8)
pad8.Profile = sketch8
pad8.setExpression("Length", "Params.pad8_length")
body15 = doc.addObject("PartDesign::Body", "Body014")
doc.recompute()

body14.Placement = App.Placement(V(0, 0, 13), App.Rotation(V(0, 0, 1), 0))
boolean7 = doc.addObject("PartDesign::Boolean", "Boolean006")
body15.addObject(boolean7)
boolean7.Type = "Fuse"
boolean7.addObjects([body14])
doc.recompute()

boolean8 = doc.addObject("PartDesign::Boolean", "Boolean007")
body15.addObject(boolean8)
boolean8.Type = "Fuse"
boolean8.addObjects([body8])
doc.recompute()

boolean9 = doc.addObject("PartDesign::Boolean", "Boolean008")
body15.addObject(boolean9)
boolean9.Type = "Fuse"
boolean9.addObjects([body10])
doc.recompute()

boolean10 = doc.addObject("PartDesign::Boolean", "Boolean009")
body15.addObject(boolean10)
boolean10.Type = "Fuse"
boolean10.addObjects([body11])
doc.recompute()

boolean11 = doc.addObject("PartDesign::Boolean", "Boolean010")
body15.addObject(boolean11)
boolean11.Type = "Fuse"
boolean11.addObjects([body13])
doc.recompute()

boolean12 = doc.addObject("PartDesign::Boolean", "Boolean011")
body15.addObject(boolean12)
boolean12.Type = "Cut"
boolean12.addObjects([body6])
doc.recompute()

boolean13 = doc.addObject("PartDesign::Boolean", "Boolean012")
body15.addObject(boolean13)
boolean13.Type = "Fuse"
boolean13.addObjects([body5])
doc.recompute()

boolean14 = doc.addObject("PartDesign::Boolean", "Boolean013")
body15.addObject(boolean14)
boolean14.Type = "Fuse"
boolean14.addObjects([body2])

doc.recompute()
